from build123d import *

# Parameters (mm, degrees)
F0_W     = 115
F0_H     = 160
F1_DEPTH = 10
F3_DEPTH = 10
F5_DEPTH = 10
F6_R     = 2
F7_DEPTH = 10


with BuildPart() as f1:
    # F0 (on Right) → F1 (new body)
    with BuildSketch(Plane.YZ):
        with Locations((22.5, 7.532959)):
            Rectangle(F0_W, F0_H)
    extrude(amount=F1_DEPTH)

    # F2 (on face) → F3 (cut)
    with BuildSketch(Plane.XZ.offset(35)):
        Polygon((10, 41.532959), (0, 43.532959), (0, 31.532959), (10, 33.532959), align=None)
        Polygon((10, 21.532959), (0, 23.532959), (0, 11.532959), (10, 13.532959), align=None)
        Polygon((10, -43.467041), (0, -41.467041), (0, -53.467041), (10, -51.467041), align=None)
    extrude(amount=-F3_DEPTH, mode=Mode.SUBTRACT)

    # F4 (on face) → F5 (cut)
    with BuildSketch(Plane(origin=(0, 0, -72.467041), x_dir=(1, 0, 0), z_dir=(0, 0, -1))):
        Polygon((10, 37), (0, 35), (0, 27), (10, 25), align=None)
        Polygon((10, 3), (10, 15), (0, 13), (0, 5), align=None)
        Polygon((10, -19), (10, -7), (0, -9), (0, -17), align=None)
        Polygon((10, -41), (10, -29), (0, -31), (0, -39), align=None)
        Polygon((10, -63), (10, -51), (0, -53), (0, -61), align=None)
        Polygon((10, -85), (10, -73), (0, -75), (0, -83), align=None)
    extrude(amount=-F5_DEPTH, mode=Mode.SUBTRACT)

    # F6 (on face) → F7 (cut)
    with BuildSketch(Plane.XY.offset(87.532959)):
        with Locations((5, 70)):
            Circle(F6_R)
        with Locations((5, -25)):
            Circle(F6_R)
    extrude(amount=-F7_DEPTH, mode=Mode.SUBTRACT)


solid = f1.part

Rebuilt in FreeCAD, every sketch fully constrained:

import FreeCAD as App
import Part
import Sketcher
Q = App.Units.Quantity


def add_polygon(sketch, points):
    """Adds a closed chain of lines whose ends are joined by coincident constraints."""
    first, n = sketch.GeometryCount, len(points)
    for a, b in zip(points, points[1:] + points[:1]):
        sketch.addGeometry(Part.LineSegment(App.Vector(*a, 0), App.Vector(*b, 0)), False)
    for i in range(n):
        sketch.addConstraint(Sketcher.Constraint("Coincident", first + i, 2, first + (i + 1) % n, 1))

doc = App.newDocument("Part")
params = doc.addObject("Spreadsheet::Sheet", "Params")
for row, (alias, value) in enumerate([
    ("sketch1_width", "115 mm"),
    ("sketch1_height", "160 mm"),
    ("pad1_length", "10 mm"),
    ("sketch2_height", "12 mm"),
    ("sketch2_height2", "8 mm"),
    ("pocket1_length", "10 mm"),
    ("sketch3_height", "8 mm"),
    ("sketch3_height2", "12 mm"),
    ("pocket2_length", "10 mm"),
    ("sketch4_diameter", "4 mm"),
    ("pocket3_length", "10 mm"),
], start=1):
    params.set(f"A{row}", alias)
    params.set(f"B{row}", "=" + value)
    params.setAlias(f"B{row}", alias)

body = doc.addObject("PartDesign::Body", "Body")

sketch1 = body.newObject("Sketcher::SketchObject", "Sketch")
sketch1.AttachmentSupport = (doc.getObject("YZ_Plane"), [""])
sketch1.MapMode = "FlatFace"
add_polygon(sketch1, [(-35, 88), (-35, -72), (80, -72), (80, 88)])
sketch1.addConstraint(Sketcher.Constraint("Vertical", 0))
sketch1.addConstraint(Sketcher.Constraint("Horizontal", 1))
sketch1.addConstraint(Sketcher.Constraint("Vertical", 2))
sketch1.addConstraint(Sketcher.Constraint("Horizontal", 3))
sketch1.addConstraint(Sketcher.Constraint("DistanceX", 1, 1, 1, 2, Q("115 mm")))
sketch1.addConstraint(Sketcher.Constraint("DistanceY", 0, 2, 0, 1, Q("160 mm")))
sketch1.addConstraint(Sketcher.Constraint("DistanceX", 0, 2, -1, 1, Q("35 mm")))
sketch1.addConstraint(Sketcher.Constraint("DistanceY", 0, 2, -1, 1, Q("72.467041 mm")))
sketch1.setExpression("Constraints[8]", "Params.sketch1_width")
sketch1.setExpression("Constraints[9]", "Params.sketch1_height")
pad1 = body.newObject("PartDesign::Pad", "Pad")
pad1.Profile = sketch1
pad1.setExpression("Length", "Params.pad1_length")

sketch2 = body.newObject("Sketcher::SketchObject", "Sketch001")
sketch2.AttachmentSupport = (doc.getObject("XZ_Plane"), [""])
sketch2.MapMode = "FlatFace"
sketch2.AttachmentOffset = App.Placement(App.Vector(0, 0, 35), App.Rotation())
add_polygon(sketch2, [(10, 42), (0, 44), (0, 32), (10, 34)])
add_polygon(sketch2, [(10, 22), (0, 24), (0, 12), (10, 14)])
add_polygon(sketch2, [(10, -43), (0, -41), (0, -53), (10, -51)])
sketch2.addConstraint(Sketcher.Constraint("Vertical", 1))
sketch2.addConstraint(Sketcher.Constraint("Vertical", 3))
sketch2.addConstraint(Sketcher.Constraint("Vertical", 5))
sketch2.addConstraint(Sketcher.Constraint("Vertical", 7))
sketch2.addConstraint(Sketcher.Constraint("Vertical", 9))
sketch2.addConstraint(Sketcher.Constraint("Vertical", 11))
sketch2.addConstraint(Sketcher.Constraint("PointOnObject", 0, 2, -2))
sketch2.addConstraint(Sketcher.Constraint("PointOnObject", 4, 2, -2))
sketch2.addConstraint(Sketcher.Constraint("PointOnObject", 8, 2, -2))
sketch2.addConstraint(Sketcher.Constraint("Parallel", 0, 4))
sketch2.addConstraint(Sketcher.Constraint("Parallel", 2, 6))
sketch2.addConstraint(Sketcher.Constraint("Parallel", 4, 8))
sketch2.addConstraint(Sketcher.Constraint("Parallel", 6, 10))
sketch2.addConstraint(Sketcher.Constraint("Vertical", 3, 2, 6, 2))
sketch2.addConstraint(Sketcher.Constraint("Vertical", 7, 2, 10, 2))
sketch2.addConstraint(Sketcher.Constraint("Equal", 1, 5))
sketch2.addConstraint(Sketcher.Constraint("Equal", 5, 9))
sketch2.addConstraint(Sketcher.Constraint("Equal", 0, 2))
sketch2.addConstraint(Sketcher.Constraint("DistanceY", 1, 2, 1, 1, Q("12 mm")))
sketch2.addConstraint(Sketcher.Constraint("DistanceY", 3, 1, 3, 2, Q("8 mm")))
sketch2.addConstraint(Sketcher.Constraint("DistanceX", -1, 1, 2, 2, Q("10 mm")))
sketch2.addConstraint(Sketcher.Constraint("DistanceY", 4, 2, 1, 2, Q("8 mm")))
sketch2.addConstraint(Sketcher.Constraint("DistanceY", 8, 2, 5, 2, Q("53 mm")))
sketch2.addConstraint(Sketcher.Constraint("DistanceY", -1, 1, 0, 2, Q("43.532959 mm")))
sketch2.setExpression("Constraints[30]", "Params.sketch2_height")
sketch2.setExpression("Constraints[31]", "Params.sketch2_height2")
pocket1 = body.newObject("PartDesign::Pocket", "Pocket")
pocket1.Profile = sketch2
pocket1.setExpression("Length", "Params.pocket1_length")

sketch3 = body.newObject("Sketcher::SketchObject", "Sketch002")
sketch3.AttachmentSupport = (doc.getObject("XY_Plane"), [""])
sketch3.MapMode = "FlatFace"
sketch3.AttachmentOffset = App.Placement(App.Vector(0, 0, -72.467041), App.Rotation())
add_polygon(sketch3, [(10, -37), (0, -35), (0, -27), (10, -25)])
add_polygon(sketch3, [(10, -3), (10, -15), (0, -13), (0, -5)])
add_polygon(sketch3, [(10, 19), (10, 7), (0, 9), (0, 17)])
add_polygon(sketch3, [(10, 41), (10, 29), (0, 31), (0, 39)])
add_polygon(sketch3, [(10, 63), (10, 51), (0, 53), (0, 61)])
add_polygon(sketch3, [(10, 85), (10, 73), (0, 75), (0, 83)])
sketch3.addConstraint(Sketcher.Constraint("Vertical", 1))
sketch3.addConstraint(Sketcher.Constraint("Vertical", 3))
sketch3.addConstraint(Sketcher.Constraint("Vertical", 4))
sketch3.addConstraint(Sketcher.Constraint("Vertical", 6))
sketch3.addConstraint(Sketcher.Constraint("Vertical", 8))
sketch3.addConstraint(Sketcher.Constraint("Vertical", 10))
sketch3.addConstraint(Sketcher.Constraint("Vertical", 12))
sketch3.addConstraint(Sketcher.Constraint("Vertical", 14))
sketch3.addConstraint(Sketcher.Constraint("Vertical", 16))
sketch3.addConstraint(Sketcher.Constraint("Vertical", 18))
sketch3.addConstraint(Sketcher.Constraint("Vertical", 20))
sketch3.addConstraint(Sketcher.Constraint("Vertical", 22))
sketch3.addConstraint(Sketcher.Constraint("PointOnObject", 0, 2, -2))
sketch3.addConstraint(Sketcher.Constraint("PointOnObject", 5, 2, -2))
sketch3.addConstraint(Sketcher.Constraint("PointOnObject", 9, 2, -2))
sketch3.addConstraint(Sketcher.Constraint("PointOnObject", 13, 2, -2))
sketch3.addConstraint(Sketcher.Constraint("PointOnObject", 17, 2, -2))
sketch3.addConstraint(Sketcher.Constraint("PointOnObject", 21, 2, -2))
sketch3.addConstraint(Sketcher.Constraint("Parallel", 0, 5))
sketch3.addConstraint(Sketcher.Constraint("Parallel", 2, 7))
sketch3.addConstraint(Sketcher.Constraint("Parallel", 5, 9))
sketch3.addConstraint(Sketcher.Constraint("Parallel", 7, 11))
sketch3.addConstraint(Sketcher.Constraint("Parallel", 9, 13))
sketch3.addConstraint(Sketcher.Constraint("Parallel", 11, 15))
sketch3.addConstraint(Sketcher.Constraint("Parallel", 13, 17))
sketch3.addConstraint(Sketcher.Constraint("Parallel", 15, 19))
sketch3.addConstraint(Sketcher.Constraint("Parallel", 17, 21))
sketch3.addConstraint(Sketcher.Constraint("Parallel", 19, 23))
sketch3.addConstraint(Sketcher.Constraint("Vertical", 3, 2, 4, 2))
sketch3.addConstraint(Sketcher.Constraint("Vertical", 7, 2, 8, 2))
sketch3.addConstraint(Sketcher.Constraint("Vertical", 11, 2, 12, 2))
sketch3.addConstraint(Sketcher.Constraint("Vertical", 15, 2, 16, 2))
sketch3.addConstraint(Sketcher.Constraint("Vertical", 19, 2, 20, 2))
sketch3.addConstraint(Sketcher.Constraint("Equal", 3, 4))
sketch3.addConstraint(Sketcher.Constraint("Equal", 4, 8))
sketch3.addConstraint(Sketcher.Constraint("Equal", 8, 12))
sketch3.addConstraint(Sketcher.Constraint("Equal", 12, 16))
sketch3.addConstraint(Sketcher.Constraint("Equal", 16, 20))
sketch3.addConstraint(Sketcher.Constraint("Equal", 0, 2))
sketch3.addConstraint(Sketcher.Constraint("DistanceY", 1, 1, 1, 2, Q("8 mm")))
sketch3.addConstraint(Sketcher.Constraint("DistanceY", 3, 2, 3, 1, Q("12 mm")))
sketch3.addConstraint(Sketcher.Constraint("DistanceY", 0, 2, -1, 1, Q("35 mm")))
sketch3.addConstraint(Sketcher.Constraint("DistanceX", -1, 1, 2, 2, Q("10 mm")))
sketch3.addConstraint(Sketcher.Constraint("DistanceY", 4, 2, -1, 1, Q("15 mm")))
sketch3.addConstraint(Sketcher.Constraint("DistanceY", -1, 1, 8, 2, Q("7 mm")))
sketch3.addConstraint(Sketcher.Constraint("DistanceY", -1, 1, 12, 2, Q("29 mm")))
sketch3.addConstraint(Sketcher.Constraint("DistanceY", -1, 1, 16, 2, Q("51 mm")))
sketch3.addConstraint(Sketcher.Constraint("DistanceY", -1, 1, 20, 2, Q("73 mm")))
sketch3.setExpression("Constraints[63]", "Params.sketch3_height")
sketch3.setExpression("Constraints[64]", "Params.sketch3_height2")
pocket2 = body.newObject("PartDesign::Pocket", "Pocket001")
pocket2.Profile = sketch3
pocket2.setExpression("Length", "Params.pocket2_length")
pocket2.Reversed = True

sketch4 = body.newObject("Sketcher::SketchObject", "Sketch003")
sketch4.AttachmentSupport = (doc.getObject("XY_Plane"), [""])
sketch4.MapMode = "FlatFace"
sketch4.AttachmentOffset = App.Placement(App.Vector(0, 0, 87.532959), App.Rotation())
sketch4.addGeometry(Part.Circle(App.Vector(5, 70, 0), App.Vector(0, 0, 1), 2), False)
sketch4.addGeometry(Part.Circle(App.Vector(5, -25, 0), App.Vector(0, 0, 1), 2), False)
sketch4.addConstraint(Sketcher.Constraint("Equal", 0, 1))
sketch4.addConstraint(Sketcher.Constraint("Vertical", 0, 3, 1, 3))
sketch4.addConstraint(Sketcher.Constraint("Diameter", 0, Q("4 mm")))
sketch4.addConstraint(Sketcher.Constraint("DistanceX", -1, 1, 0, 3, Q("5 mm")))
sketch4.addConstraint(Sketcher.Constraint("DistanceY", -1, 1, 0, 3, Q("70 mm")))
sketch4.addConstraint(Sketcher.Constraint("DistanceY", 1, 3, -1, 1, Q("25 mm")))
sketch4.setExpression("Constraints[2]", "Params.sketch4_diameter")
pocket3 = body.newObject("PartDesign::Pocket", "Pocket002")
pocket3.Profile = sketch4
pocket3.setExpression("Length", "Params.pocket3_length")

doc.recompute()
